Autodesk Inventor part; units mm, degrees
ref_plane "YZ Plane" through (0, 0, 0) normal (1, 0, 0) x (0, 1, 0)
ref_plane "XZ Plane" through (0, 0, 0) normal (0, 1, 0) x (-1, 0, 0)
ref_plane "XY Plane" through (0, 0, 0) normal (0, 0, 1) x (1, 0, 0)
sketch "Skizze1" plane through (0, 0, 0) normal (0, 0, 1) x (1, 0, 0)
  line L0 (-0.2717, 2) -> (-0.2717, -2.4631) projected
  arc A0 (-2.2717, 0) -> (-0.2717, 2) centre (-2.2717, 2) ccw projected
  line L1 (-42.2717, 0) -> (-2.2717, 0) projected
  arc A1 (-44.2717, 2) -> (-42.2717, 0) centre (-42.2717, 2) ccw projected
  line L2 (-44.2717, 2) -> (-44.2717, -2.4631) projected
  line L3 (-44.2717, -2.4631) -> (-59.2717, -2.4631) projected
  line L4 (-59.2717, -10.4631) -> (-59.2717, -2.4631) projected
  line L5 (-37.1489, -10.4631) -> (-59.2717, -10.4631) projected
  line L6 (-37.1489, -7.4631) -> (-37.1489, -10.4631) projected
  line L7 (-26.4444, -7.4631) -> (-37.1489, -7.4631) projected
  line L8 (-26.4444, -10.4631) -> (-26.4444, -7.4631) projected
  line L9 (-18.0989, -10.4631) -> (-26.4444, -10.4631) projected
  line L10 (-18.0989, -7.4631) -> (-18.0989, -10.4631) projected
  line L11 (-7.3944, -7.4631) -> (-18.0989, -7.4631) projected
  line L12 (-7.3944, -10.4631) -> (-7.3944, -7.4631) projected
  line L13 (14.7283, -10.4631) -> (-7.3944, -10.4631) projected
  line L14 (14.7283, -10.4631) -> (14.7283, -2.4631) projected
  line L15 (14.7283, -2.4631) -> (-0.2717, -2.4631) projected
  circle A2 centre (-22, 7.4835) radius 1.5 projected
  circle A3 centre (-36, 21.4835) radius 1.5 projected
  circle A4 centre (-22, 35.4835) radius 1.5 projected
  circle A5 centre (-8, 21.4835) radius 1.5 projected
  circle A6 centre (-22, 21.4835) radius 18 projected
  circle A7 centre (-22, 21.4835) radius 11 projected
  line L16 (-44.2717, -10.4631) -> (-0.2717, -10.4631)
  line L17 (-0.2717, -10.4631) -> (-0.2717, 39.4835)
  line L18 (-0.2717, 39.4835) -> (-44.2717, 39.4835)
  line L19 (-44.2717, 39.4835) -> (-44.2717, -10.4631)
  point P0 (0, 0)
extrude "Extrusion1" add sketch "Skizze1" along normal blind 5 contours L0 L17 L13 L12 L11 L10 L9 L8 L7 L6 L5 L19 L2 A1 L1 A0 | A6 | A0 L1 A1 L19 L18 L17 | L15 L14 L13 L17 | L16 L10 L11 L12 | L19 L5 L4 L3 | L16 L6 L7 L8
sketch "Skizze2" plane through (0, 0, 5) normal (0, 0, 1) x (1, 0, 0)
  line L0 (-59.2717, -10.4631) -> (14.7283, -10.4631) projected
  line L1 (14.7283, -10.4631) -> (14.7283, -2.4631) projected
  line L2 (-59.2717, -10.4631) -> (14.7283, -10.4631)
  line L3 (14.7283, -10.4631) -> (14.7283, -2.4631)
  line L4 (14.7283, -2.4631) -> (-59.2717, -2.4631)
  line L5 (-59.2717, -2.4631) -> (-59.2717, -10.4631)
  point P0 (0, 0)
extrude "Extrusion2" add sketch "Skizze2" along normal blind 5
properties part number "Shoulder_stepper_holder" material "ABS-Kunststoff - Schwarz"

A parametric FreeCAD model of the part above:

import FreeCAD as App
import Part
import Sketcher

V = App.Vector
Q = App.Units.Quantity


def add_polygon(sketch, points):
    """Adds a closed chain of lines whose ends are joined by coincident constraints."""
    first, n = sketch.GeometryCount, len(points)
    for a, b in zip(points, points[1:] + points[:1]):
        sketch.addGeometry(Part.LineSegment(App.Vector(*a, 0), App.Vector(*b, 0)), False)
    for i in range(n):
        sketch.addConstraint(Sketcher.Constraint("Coincident", first + i, 2, first + (i + 1) % n, 1))

doc = App.newDocument("Part")
params = doc.addObject("Spreadsheet::Sheet", "Params")
for row, (alias, value) in enumerate([
    ("sketch1_diameter", "3 mm"),
    ("sketch1_diameter2", "22 mm"),
    ("sketch1_width", "44 mm"),
    ("sketch1_width2", "15 mm"),
    ("sketch1_height", "8 mm"),
    ("pad1_length", "5 mm"),
    ("sketch2_width", "74 mm"),
    ("sketch2_height", "8 mm"),
    ("pad2_length", "5 mm"),
], start=1):
    params.set(f"A{row}", alias)
    params.set(f"B{row}", "=" + value)
    params.setAlias(f"B{row}", alias)

body = doc.addObject("PartDesign::Body", "Body")

sketch1 = body.newObject("Sketcher::SketchObject", "Sketch")
sketch1.AttachmentSupport = (doc.getObject("XY_Plane"), [""])
sketch1.MapMode = "FlatFace"
add_polygon(sketch1, [(-0.3, -2.5), (-0.3, 39.5), (-44.3, 39.5), (-44.3, -2.5), (-59.3, -2.5), (-59.3, -10.5), (14.7, -10.5), (14.7, -2.5)])
sketch1.addGeometry(Part.Circle(V(-8, 21.5, 0), V(0, 0, 1), 1.5), False)
sketch1.addGeometry(Part.Circle(V(-22, 35.5, 0), V(0, 0, 1), 1.5), False)
sketch1.addGeometry(Part.Circle(V(-22, 7.5, 0), V(0, 0, 1), 1.5), False)
sketch1.addGeometry(Part.Circle(V(-36, 21.5, 0), V(0, 0, 1), 1.5), False)
sketch1.addGeometry(Part.Circle(V(-22, 21.5, 0), V(0, 0, 1), 11), False)
sketch1.addConstraint([
    Sketcher.Constraint("Vertical", 0),
    Sketcher.Constraint("Horizontal", 1),
    Sketcher.Constraint("Vertical", 2),
    Sketcher.Constraint("Horizontal", 3),
    Sketcher.Constraint("Vertical", 4),
    Sketcher.Constraint("Horizontal", 5),
    Sketcher.Constraint("Vertical", 6),
    Sketcher.Constraint("Horizontal", 7),
    Sketcher.Constraint("Equal", 8, 9),
    Sketcher.Constraint("Equal", 9, 10),
    Sketcher.Constraint("Equal", 10, 11),
    Sketcher.Constraint("Horizontal", 8, 3, 11, 3),
    Sketcher.Constraint("Horizontal", 11, 3, 12, 3),
    Sketcher.Constraint("Horizontal", 3, 2, 6, 2),
    Sketcher.Constraint("Vertical", 9, 3, 10, 3),
    Sketcher.Constraint("Vertical", 10, 3, 12, 3),
    Sketcher.Constraint("Equal", 3, 7),
    Sketcher.Constraint("Diameter", 8, Q("3 mm")),
    Sketcher.Constraint("Diameter", 12, Q("22 mm")),
    Sketcher.Constraint("DistanceX", 1, 2, 1, 1, Q("44 mm")),
    Sketcher.Constraint("DistanceX", 3, 2, 3, 1, Q("15 mm")),
    Sketcher.Constraint("DistanceY", 4, 2, 4, 1, Q("8 mm")),
    Sketcher.Constraint("DistanceX", 8, 3, -1, 1, Q("8 mm")),
    Sketcher.Constraint("DistanceX", 9, 3, -1, 1, Q("22 mm")),
    Sketcher.Constraint("DistanceX", 11, 3, -1, 1, Q("36 mm")),
    Sketcher.Constraint("DistanceY", 8, 3, 9, 3, Q("14 mm")),
    Sketcher.Constraint("DistanceY", 10, 3, 8, 3, Q("14 mm")),
    Sketcher.Constraint("DistanceY", 8, 3, 0, 2, Q("18 mm")),
    Sketcher.Constraint("DistanceY", 0, 1, 0, 2, Q("41.9466 mm")),
    Sketcher.Constraint("DistanceY", 2, 2, -1, 1, Q("2.463 mm")),
    Sketcher.Constraint("DistanceX", 0, 2, -1, 1, Q("0.2717 mm")),
])
sketch1.setExpression("Constraints[25]", "Params.sketch1_diameter")
sketch1.setExpression("Constraints[26]", "Params.sketch1_diameter2")
sketch1.setExpression("Constraints[27]", "Params.sketch1_width")
sketch1.setExpression("Constraints[28]", "Params.sketch1_width2")
sketch1.setExpression("Constraints[29]", "Params.sketch1_height")
pad1 = body.newObject("PartDesign::Pad", "Pad")
pad1.Profile = sketch1
pad1.setExpression("Length", "Params.pad1_length")

sketch2 = body.newObject("Sketcher::SketchObject", "Sketch001")
sketch2.AttachmentSupport = (doc.getObject("XY_Plane"), [""])
sketch2.MapMode = "FlatFace"
sketch2.AttachmentOffset = App.Placement(V(0, 0, 5), App.Rotation())
add_polygon(sketch2, [(-59, -2), (-59, -10), (15, -10), (15, -2)])
sketch2.addConstraint([
    Sketcher.Constraint("Vertical", 0),
    Sketcher.Constraint("Horizontal", 1),
    Sketcher.Constraint("Vertical", 2),
    Sketcher.Constraint("Horizontal", 3),
    Sketcher.Constraint("DistanceX", 1, 1, 1, 2, Q("74 mm")),
    Sketcher.Constraint("DistanceY", 0, 2, 0, 1, Q("8 mm")),
    Sketcher.Constraint("DistanceY", 0, 2, -1, 1, Q("10.463 mm")),
    Sketcher.Constraint("DistanceX", 0, 2, -1, 1, Q("59.2717 mm")),
])
sketch2.setExpression("Constraints[8]", "Params.sketch2_width")
sketch2.setExpression("Constraints[9]", "Params.sketch2_height")
pad2 = body.newObject("PartDesign::Pad", "Pad001")
pad2.Profile = sketch2
pad2.setExpression("Length", "Params.pad2_length")

doc.recompute()
